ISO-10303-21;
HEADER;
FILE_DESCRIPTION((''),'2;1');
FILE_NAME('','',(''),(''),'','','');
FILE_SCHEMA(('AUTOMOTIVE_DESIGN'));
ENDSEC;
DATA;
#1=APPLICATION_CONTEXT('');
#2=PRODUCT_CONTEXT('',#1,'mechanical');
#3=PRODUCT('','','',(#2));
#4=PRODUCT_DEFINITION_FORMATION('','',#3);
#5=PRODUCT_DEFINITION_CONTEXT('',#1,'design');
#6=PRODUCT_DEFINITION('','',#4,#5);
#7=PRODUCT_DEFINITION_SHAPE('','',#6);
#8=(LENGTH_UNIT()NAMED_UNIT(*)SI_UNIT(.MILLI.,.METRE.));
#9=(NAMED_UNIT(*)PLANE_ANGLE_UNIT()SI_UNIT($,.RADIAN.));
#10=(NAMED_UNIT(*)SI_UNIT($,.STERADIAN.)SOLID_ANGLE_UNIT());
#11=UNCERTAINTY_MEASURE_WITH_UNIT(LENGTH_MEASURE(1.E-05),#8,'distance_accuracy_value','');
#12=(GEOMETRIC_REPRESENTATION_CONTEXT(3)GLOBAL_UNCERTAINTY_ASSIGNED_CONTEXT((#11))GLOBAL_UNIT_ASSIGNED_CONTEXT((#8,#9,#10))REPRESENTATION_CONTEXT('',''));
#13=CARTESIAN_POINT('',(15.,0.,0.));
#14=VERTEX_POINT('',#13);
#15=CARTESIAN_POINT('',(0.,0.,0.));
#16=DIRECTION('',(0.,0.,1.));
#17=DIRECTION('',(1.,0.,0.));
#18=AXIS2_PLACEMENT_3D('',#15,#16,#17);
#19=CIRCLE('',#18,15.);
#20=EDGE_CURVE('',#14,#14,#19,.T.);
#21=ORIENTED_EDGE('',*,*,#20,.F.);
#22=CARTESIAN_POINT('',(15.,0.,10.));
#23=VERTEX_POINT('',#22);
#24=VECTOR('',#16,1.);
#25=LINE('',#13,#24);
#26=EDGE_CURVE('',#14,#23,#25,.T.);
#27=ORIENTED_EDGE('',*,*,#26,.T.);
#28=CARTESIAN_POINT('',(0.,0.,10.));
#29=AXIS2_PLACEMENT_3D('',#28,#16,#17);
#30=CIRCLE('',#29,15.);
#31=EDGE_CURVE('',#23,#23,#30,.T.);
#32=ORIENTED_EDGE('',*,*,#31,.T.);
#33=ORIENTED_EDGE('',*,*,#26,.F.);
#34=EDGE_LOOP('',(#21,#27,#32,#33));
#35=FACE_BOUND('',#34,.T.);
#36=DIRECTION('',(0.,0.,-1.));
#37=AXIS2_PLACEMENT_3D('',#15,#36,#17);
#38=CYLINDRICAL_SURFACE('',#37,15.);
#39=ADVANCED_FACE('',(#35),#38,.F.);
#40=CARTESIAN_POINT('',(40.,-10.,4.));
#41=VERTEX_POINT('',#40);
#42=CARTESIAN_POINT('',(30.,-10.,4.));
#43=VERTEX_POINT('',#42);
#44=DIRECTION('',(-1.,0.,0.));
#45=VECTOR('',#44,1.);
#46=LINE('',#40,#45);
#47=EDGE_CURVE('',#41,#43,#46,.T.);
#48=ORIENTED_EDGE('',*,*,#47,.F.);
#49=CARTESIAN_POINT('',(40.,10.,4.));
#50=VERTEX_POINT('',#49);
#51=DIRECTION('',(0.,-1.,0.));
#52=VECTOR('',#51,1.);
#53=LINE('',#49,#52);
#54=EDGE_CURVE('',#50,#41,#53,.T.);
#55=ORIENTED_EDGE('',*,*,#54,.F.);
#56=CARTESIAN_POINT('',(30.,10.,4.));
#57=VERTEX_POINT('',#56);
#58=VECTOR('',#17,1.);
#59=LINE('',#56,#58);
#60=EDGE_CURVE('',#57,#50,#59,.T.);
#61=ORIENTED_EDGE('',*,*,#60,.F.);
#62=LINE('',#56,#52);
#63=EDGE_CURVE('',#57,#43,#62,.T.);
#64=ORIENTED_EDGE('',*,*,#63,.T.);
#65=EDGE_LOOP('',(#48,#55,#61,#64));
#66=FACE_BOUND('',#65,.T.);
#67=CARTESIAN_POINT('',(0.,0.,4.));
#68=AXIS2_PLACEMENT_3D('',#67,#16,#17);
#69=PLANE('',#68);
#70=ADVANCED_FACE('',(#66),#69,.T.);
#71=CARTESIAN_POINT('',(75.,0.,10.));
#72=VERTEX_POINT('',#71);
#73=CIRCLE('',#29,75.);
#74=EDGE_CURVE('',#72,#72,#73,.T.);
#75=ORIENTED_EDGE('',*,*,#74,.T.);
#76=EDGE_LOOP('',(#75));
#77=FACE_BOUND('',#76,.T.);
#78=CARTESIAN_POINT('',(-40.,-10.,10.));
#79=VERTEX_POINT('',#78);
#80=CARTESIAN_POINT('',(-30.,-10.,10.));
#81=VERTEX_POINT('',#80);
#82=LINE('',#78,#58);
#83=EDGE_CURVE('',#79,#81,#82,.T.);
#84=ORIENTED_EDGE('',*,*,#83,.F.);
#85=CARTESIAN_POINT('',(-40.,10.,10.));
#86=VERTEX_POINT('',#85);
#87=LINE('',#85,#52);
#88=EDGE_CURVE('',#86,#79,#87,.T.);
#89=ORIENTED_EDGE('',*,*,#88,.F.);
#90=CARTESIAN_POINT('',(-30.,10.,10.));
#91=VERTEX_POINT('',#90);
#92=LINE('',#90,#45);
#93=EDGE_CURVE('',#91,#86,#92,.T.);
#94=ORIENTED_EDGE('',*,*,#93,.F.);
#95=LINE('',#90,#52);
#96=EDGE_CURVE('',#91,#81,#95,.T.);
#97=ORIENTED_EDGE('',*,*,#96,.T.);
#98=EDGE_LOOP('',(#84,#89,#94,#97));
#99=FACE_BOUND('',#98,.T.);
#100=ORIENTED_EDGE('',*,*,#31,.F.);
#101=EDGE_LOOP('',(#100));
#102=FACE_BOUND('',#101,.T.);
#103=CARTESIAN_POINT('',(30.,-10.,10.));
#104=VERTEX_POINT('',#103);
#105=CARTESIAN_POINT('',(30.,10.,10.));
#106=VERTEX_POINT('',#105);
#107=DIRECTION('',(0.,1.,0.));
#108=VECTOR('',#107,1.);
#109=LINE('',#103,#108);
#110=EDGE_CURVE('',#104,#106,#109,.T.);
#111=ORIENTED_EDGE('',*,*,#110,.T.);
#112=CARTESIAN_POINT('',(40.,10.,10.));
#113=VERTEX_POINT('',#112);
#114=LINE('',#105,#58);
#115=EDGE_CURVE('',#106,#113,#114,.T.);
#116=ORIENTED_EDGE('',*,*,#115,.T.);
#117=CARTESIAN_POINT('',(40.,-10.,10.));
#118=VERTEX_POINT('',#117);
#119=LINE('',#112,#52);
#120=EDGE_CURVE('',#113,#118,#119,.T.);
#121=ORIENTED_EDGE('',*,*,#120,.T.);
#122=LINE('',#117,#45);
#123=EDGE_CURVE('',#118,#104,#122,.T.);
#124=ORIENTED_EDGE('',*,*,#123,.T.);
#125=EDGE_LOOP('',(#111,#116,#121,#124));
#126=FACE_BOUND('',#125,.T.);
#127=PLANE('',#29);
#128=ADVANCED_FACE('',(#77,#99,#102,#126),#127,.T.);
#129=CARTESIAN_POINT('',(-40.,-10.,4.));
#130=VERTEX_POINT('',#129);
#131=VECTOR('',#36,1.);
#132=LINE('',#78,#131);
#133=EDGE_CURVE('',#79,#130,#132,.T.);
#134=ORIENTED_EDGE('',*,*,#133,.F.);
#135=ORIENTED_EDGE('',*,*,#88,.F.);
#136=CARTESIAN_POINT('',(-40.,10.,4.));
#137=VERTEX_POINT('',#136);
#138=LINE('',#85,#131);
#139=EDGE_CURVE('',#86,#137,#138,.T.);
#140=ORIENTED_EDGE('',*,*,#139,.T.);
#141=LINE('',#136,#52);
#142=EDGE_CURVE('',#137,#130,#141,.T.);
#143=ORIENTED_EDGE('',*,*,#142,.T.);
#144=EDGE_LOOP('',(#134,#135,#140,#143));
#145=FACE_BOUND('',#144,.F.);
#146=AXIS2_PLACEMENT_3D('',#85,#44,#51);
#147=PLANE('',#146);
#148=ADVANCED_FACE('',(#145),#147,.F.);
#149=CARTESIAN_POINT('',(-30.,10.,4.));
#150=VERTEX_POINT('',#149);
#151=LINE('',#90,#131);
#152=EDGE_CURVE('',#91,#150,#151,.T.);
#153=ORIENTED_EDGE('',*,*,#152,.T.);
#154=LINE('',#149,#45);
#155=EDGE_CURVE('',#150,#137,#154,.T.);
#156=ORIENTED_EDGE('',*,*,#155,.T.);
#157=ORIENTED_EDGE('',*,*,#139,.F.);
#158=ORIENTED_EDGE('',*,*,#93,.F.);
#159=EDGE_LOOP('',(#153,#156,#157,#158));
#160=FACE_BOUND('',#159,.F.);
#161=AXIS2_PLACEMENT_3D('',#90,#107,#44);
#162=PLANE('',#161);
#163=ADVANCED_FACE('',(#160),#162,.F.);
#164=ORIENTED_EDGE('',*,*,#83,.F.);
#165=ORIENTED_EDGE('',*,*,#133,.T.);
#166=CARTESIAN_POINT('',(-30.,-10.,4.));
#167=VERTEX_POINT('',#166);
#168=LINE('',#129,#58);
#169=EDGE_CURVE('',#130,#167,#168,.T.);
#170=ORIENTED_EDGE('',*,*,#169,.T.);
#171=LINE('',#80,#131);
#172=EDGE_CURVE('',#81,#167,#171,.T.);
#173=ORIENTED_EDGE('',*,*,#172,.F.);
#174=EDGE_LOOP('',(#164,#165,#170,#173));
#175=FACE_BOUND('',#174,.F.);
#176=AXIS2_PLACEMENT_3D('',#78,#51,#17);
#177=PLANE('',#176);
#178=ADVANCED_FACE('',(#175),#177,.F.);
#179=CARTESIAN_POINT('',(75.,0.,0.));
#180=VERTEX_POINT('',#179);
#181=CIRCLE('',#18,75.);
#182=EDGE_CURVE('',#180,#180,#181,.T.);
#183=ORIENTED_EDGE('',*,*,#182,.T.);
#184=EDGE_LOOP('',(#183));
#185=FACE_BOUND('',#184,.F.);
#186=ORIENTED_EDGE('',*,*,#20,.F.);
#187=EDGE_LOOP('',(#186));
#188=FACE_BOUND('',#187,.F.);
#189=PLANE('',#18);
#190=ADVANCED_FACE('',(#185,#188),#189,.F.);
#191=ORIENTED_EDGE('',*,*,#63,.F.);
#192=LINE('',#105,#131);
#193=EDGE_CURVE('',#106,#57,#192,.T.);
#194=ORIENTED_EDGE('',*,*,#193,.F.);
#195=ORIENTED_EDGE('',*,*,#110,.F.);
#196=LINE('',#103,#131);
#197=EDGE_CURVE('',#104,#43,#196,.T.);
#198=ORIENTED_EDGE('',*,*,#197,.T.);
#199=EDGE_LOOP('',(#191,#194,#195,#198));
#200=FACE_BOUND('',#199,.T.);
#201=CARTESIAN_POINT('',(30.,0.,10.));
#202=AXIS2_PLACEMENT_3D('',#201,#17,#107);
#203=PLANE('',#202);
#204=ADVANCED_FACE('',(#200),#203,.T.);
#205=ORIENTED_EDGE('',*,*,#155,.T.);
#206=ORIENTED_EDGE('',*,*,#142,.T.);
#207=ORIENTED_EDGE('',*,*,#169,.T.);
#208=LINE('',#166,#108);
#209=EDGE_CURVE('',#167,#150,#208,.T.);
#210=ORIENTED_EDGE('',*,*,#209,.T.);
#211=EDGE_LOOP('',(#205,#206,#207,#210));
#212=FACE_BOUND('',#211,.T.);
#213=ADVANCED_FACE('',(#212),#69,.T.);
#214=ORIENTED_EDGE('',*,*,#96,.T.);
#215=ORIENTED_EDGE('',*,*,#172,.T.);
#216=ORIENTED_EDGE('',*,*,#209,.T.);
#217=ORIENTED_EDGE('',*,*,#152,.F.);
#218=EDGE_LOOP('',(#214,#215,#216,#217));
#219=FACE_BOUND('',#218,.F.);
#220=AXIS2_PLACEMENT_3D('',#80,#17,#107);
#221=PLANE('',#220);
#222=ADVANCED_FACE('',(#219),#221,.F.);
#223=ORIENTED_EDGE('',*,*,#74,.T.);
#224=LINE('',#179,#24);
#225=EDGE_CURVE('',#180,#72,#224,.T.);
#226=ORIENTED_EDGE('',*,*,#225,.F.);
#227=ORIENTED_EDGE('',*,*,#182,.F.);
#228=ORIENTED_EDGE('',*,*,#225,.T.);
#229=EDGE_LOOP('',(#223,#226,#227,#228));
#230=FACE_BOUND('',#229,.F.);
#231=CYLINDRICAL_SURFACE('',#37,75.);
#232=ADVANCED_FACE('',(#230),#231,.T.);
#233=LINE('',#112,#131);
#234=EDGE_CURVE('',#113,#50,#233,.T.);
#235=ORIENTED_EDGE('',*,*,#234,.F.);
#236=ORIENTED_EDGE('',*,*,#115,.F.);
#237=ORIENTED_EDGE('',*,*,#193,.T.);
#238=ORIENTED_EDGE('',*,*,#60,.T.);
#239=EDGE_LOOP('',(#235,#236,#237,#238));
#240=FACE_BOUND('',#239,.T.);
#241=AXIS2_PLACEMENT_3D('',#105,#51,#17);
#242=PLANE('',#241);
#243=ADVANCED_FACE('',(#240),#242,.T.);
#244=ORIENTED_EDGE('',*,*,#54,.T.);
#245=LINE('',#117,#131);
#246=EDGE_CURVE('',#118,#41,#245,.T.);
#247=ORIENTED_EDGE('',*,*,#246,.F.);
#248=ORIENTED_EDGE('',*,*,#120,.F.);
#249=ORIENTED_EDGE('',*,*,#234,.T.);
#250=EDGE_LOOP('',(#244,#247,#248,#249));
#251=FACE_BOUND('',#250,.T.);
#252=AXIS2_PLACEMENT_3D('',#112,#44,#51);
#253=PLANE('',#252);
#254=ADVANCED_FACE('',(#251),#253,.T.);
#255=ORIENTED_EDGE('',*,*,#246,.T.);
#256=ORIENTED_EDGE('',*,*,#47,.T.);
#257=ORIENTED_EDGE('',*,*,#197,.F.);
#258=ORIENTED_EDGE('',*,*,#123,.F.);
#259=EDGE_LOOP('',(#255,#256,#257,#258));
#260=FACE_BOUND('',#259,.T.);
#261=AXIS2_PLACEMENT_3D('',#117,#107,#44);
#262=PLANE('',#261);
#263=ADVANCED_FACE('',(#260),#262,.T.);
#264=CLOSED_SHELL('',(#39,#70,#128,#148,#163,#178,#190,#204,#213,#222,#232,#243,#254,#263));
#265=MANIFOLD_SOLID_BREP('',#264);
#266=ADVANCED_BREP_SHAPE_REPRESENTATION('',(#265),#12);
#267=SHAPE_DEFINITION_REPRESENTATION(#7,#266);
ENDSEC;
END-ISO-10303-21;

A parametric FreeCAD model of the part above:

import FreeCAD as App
import Part
import Sketcher

V = App.Vector

doc = App.newDocument("Part")
body = doc.addObject("PartDesign::Body", "Body")

# Sketch on XY plane
sketch1 = body.newObject("Sketcher::SketchObject", "Sketch")
sketch1.AttachmentSupport = (doc.getObject("XY_Plane"), [""])
sketch1.MapMode = "FlatFace"
sketch1.addGeometry([
    Part.Circle(V(0, 0, 0), V(0, 0, 1), 75),
    Part.Circle(V(0, 0, 0), V(0, 0, 1), 15),
], False)
sketch1.addConstraint([
    Sketcher.Constraint("Coincident", 0, 3, -1, 1),
    Sketcher.Constraint("Coincident", 1, 3, -1, 1),
    Sketcher.Constraint("Diameter", 0, 150.0),
    Sketcher.Constraint("Diameter", 1, 30.0),
])
pad1 = body.newObject("PartDesign::Pad", "Pad")
pad1.Profile = sketch1
pad1.Length = 10

# Sketch on XY plane
sketch2 = body.newObject("Sketcher::SketchObject", "Sketch001")
sketch2.AttachmentSupport = (doc.getObject("XY_Plane"), [""])
sketch2.MapMode = "FlatFace"
sketch2.AttachmentOffset = App.Placement(V(0, 0, 10), App.Rotation())
sketch2.addGeometry([
    Part.LineSegment(V(30, 10, 0), V(30, -10, 0)),  # 0
    Part.LineSegment(V(30, -10, 0), V(40, -10, 0)),  # 1
    Part.LineSegment(V(40, -10, 0), V(40, 10, 0)),  # 2
    Part.LineSegment(V(40, 10, 0), V(30, 10, 0)),  # 3
    Part.LineSegment(V(-30, -10, 0), V(-30, 10, 0)),  # 4
    Part.LineSegment(V(-30, 10, 0), V(-40, 10, 0)),  # 5
    Part.LineSegment(V(-40, 10, 0), V(-40, -10, 0)),  # 6
    Part.LineSegment(V(-40, -10, 0), V(-30, -10, 0)),  # 7
], False)
sketch2.addConstraint([
    Sketcher.Constraint("Coincident", 0, 2, 1, 1),
    Sketcher.Constraint("Coincident", 1, 2, 2, 1),
    Sketcher.Constraint("Coincident", 2, 2, 3, 1),
    Sketcher.Constraint("Coincident", 3, 2, 0, 1),
    Sketcher.Constraint("Coincident", 4, 2, 5, 1),
    Sketcher.Constraint("Coincident", 5, 2, 6, 1),
    Sketcher.Constraint("Coincident", 6, 2, 7, 1),
    Sketcher.Constraint("Coincident", 7, 2, 4, 1),
    Sketcher.Constraint("Vertical", 0),
    Sketcher.Constraint("Horizontal", 1),
    Sketcher.Constraint("Vertical", 2),
    Sketcher.Constraint("Horizontal", 3),
    Sketcher.Constraint("Vertical", 4),
    Sketcher.Constraint("Horizontal", 5),
    Sketcher.Constraint("Vertical", 6),
    Sketcher.Constraint("Horizontal", 7),
    Sketcher.Constraint("Symmetric", 0, 2, 4, 2, -1, 1),
    Sketcher.Constraint("Symmetric", 2, 2, 6, 2, -1, 1),
    Sketcher.Constraint("Horizontal", 3, 2, 4, 2),
    Sketcher.Constraint("DistanceX", 1, 1, 1, 2, 10.0),
    Sketcher.Constraint("DistanceY", 0, 2, 0, 1, 20.0),
    Sketcher.Constraint("DistanceX", -1, 1, 0, 2, 30.0),
])
pocket1 = body.newObject("PartDesign::Pocket", "Pocket")
pocket1.Profile = sketch2
pocket1.Length = 6

doc.recompute()
